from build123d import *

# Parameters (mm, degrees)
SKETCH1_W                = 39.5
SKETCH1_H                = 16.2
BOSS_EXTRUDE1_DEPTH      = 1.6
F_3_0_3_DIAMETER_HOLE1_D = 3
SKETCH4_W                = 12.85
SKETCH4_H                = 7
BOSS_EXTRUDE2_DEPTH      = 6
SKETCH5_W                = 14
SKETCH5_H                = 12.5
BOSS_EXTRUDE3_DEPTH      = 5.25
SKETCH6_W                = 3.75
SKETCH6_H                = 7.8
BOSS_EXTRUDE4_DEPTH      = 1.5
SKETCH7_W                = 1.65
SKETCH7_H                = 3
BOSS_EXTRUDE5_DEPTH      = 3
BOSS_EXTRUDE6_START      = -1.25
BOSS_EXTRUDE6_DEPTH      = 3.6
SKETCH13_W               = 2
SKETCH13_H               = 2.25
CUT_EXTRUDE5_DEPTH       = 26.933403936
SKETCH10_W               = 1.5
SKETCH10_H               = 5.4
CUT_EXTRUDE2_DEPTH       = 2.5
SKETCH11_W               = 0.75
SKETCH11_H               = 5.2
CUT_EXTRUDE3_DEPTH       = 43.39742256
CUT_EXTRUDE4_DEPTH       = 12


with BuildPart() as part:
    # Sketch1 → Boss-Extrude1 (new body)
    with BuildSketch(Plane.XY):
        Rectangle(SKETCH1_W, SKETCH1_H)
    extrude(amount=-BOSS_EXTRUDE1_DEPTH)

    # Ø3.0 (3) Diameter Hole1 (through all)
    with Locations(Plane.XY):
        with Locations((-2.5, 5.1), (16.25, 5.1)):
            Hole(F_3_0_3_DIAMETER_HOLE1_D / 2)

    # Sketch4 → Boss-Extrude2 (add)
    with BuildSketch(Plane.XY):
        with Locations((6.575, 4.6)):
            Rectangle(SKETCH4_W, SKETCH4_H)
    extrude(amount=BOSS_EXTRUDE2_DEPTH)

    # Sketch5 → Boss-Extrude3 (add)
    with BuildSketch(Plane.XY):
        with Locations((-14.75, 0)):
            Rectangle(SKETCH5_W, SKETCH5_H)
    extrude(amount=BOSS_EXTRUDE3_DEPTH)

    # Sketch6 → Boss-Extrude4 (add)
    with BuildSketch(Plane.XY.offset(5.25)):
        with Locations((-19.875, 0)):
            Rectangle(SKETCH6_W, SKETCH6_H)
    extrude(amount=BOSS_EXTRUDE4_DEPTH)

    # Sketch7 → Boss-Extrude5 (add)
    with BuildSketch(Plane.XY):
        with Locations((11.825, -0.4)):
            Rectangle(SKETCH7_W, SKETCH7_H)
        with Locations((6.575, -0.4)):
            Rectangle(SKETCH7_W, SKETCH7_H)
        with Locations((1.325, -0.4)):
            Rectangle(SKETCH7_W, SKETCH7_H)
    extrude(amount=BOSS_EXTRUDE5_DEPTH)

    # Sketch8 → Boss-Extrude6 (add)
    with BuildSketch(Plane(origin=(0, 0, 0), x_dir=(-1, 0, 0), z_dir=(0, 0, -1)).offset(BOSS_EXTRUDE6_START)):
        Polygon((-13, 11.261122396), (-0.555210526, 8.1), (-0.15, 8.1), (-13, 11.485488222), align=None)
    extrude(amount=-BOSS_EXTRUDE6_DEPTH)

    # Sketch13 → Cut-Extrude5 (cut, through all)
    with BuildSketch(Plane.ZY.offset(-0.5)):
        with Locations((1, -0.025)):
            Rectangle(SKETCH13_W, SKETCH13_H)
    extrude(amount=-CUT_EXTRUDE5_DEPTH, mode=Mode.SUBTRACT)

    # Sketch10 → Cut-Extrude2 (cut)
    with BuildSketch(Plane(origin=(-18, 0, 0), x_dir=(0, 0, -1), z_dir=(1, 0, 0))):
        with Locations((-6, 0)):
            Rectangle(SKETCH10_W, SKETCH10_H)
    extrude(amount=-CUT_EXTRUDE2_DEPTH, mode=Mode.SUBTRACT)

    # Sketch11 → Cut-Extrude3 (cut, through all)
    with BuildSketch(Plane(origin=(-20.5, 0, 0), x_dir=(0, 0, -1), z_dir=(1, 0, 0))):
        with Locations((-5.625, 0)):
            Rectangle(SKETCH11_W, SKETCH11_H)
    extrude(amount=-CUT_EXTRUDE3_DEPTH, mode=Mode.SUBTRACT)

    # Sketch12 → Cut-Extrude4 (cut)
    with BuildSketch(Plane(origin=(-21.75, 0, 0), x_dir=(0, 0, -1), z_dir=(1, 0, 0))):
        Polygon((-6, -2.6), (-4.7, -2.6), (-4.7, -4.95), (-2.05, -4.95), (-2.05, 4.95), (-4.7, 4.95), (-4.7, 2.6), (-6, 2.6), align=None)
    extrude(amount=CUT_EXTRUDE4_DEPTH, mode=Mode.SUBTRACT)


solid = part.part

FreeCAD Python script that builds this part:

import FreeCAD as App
import Part
import Sketcher

V = App.Vector
Q = App.Units.Quantity


def add_polygon(sketch, points):
    """Adds a closed chain of lines whose ends are joined by coincident constraints."""
    first, n = sketch.GeometryCount, len(points)
    for a, b in zip(points, points[1:] + points[:1]):
        sketch.addGeometry(Part.LineSegment(App.Vector(*a, 0), App.Vector(*b, 0)), False)
    for i in range(n):
        sketch.addConstraint(Sketcher.Constraint("Coincident", first + i, 2, first + (i + 1) % n, 1))

doc = App.newDocument("Part")
params = doc.addObject("Spreadsheet::Sheet", "Params")
for row, (alias, value) in enumerate([
    ("sketch1_width", "39.5 mm"),
    ("sketch1_height", "16.2 mm"),
    ("pad1_length", "1.6 mm"),
    ("sketch2_diameter", "3 mm"),
    ("hole_diameter", "3 mm"),
    ("sketch3_height", "7 mm"),
    ("sketch3_width", "12.85 mm"),
    ("pad2_length", "6 mm"),
    ("sketch4_width", "14 mm"),
    ("sketch4_height", "12.5 mm"),
    ("pad3_length", "5.25 mm"),
    ("sketch5_height", "7.8 mm"),
    ("sketch5_width", "3.75 mm"),
    ("pad4_length", "1.5 mm"),
    ("sketch6_height", "3 mm"),
    ("sketch6_width", "1.65 mm"),
    ("pad5_length", "3 mm"),
    ("pad6_length", "3.6 mm"),
    ("sketch8_height", "2 mm"),
    ("sketch8_width", "2.25 mm"),
    ("sketch9_width", "5.4 mm"),
    ("sketch9_height", "1.5 mm"),
    ("pocket2_length", "2.5 mm"),
    ("sketch10_width", "5.2 mm"),
    ("sketch10_height", "0.75 mm"),
    ("sketch11_width", "9.9 mm"),
    ("sketch11_width2", "5.2 mm"),
    ("sketch11_height", "1.3 mm"),
    ("sketch11_height2", "2.65 mm"),
    ("pocket4_length", "12 mm"),
], start=1):
    params.set(f"A{row}", alias)
    params.set(f"B{row}", "=" + value)
    params.setAlias(f"B{row}", alias)

body = doc.addObject("PartDesign::Body", "Body")

# Sketch on XY plane
sketch1 = body.newObject("Sketcher::SketchObject", "Sketch")
sketch1.AttachmentSupport = (doc.getObject("XY_Plane"), [""])
sketch1.MapMode = "FlatFace"
add_polygon(sketch1, [(-20, 8), (-20, -8), (20, -8), (20, 8)])  # lines 0-3
sketch1.addConstraint([
    Sketcher.Constraint("Vertical", 0),
    Sketcher.Constraint("Horizontal", 1),
    Sketcher.Constraint("Vertical", 2),
    Sketcher.Constraint("Horizontal", 3),
    Sketcher.Constraint("Symmetric", 0, 2, 2, 2, -1, 1),
    Sketcher.Constraint("DistanceX", 1, 1, 1, 2, Q("39.5 mm")),
    Sketcher.Constraint("DistanceY", 0, 2, 0, 1, Q("16.2 mm")),
])
sketch1.setExpression("Constraints[9]", "Params.sketch1_width")
sketch1.setExpression("Constraints[10]", "Params.sketch1_height")
pad1 = body.newObject("PartDesign::Pad", "Pad")
pad1.Profile = sketch1
pad1.setExpression("Length", "Params.pad1_length")
pad1.Reversed = True

# Sketch on XY plane
sketch2 = body.newObject("Sketcher::SketchObject", "Sketch001")
sketch2.AttachmentSupport = (doc.getObject("XY_Plane"), [""])
sketch2.MapMode = "FlatFace"
sketch2.addGeometry([
    Part.Circle(V(-2.5, 5.1, 0), V(0, 0, 1), 1.5),
    Part.Circle(V(16.2, 5.1, 0), V(0, 0, 1), 1.5),
], False)
sketch2.addConstraint([
    Sketcher.Constraint("Equal", 0, 1),
    Sketcher.Constraint("Horizontal", 0, 3, 1, 3),
    Sketcher.Constraint("Diameter", 0, Q("3 mm")),
    Sketcher.Constraint("DistanceX", 0, 3, -1, 1, Q("2.5 mm")),
    Sketcher.Constraint("DistanceY", -1, 1, 0, 3, Q("5.1 mm")),
    Sketcher.Constraint("DistanceX", -1, 1, 1, 3, Q("16.25 mm")),
])
sketch2.setExpression("Constraints[2]", "Params.sketch2_diameter")
doc.recompute()
hole = body.newObject("PartDesign::Hole", "Hole")
hole.Profile = sketch2
hole.ThreadType = "None"
hole.setExpression("Diameter", "Params.hole_diameter")
hole.DepthType = "ThroughAll"

# Sketch on XY plane
sketch3 = body.newObject("Sketcher::SketchObject", "Sketch002")
sketch3.AttachmentSupport = (doc.getObject("XY_Plane"), [""])
sketch3.MapMode = "FlatFace"
add_polygon(sketch3, [(0, 8), (0, 1), (13, 1), (13, 8)])  # lines 0-3
sketch3.addConstraint([
    Sketcher.Constraint("Vertical", 0),
    Sketcher.Constraint("Horizontal", 1),
    Sketcher.Constraint("Vertical", 2),
    Sketcher.Constraint("Horizontal", 3),
    Sketcher.Constraint("DistanceY", 0, 2, 0, 1, Q("7 mm")),
    Sketcher.Constraint("DistanceX", -1, 1, 1, 2, Q("13 mm")),
    Sketcher.Constraint("DistanceX", 1, 1, 1, 2, Q("12.85 mm")),
    Sketcher.Constraint("DistanceY", -1, 1, 0, 2, Q("1.1 mm")),
])
sketch3.setExpression("Constraints[8]", "Params.sketch3_height")
sketch3.setExpression("Constraints[10]", "Params.sketch3_width")
pad2 = body.newObject("PartDesign::Pad", "Pad001")
pad2.Profile = sketch3
pad2.setExpression("Length", "Params.pad2_length")

# Sketch on XY plane
sketch4 = body.newObject("Sketcher::SketchObject", "Sketch003")
sketch4.AttachmentSupport = (doc.getObject("XY_Plane"), [""])
sketch4.MapMode = "FlatFace"
add_polygon(sketch4, [(-22, 6), (-22, -6), (-8, -6), (-8, 6)])  # lines 0-3
sketch4.addConstraint([
    Sketcher.Constraint("Vertical", 0),
    Sketcher.Constraint("Horizontal", 1),
    Sketcher.Constraint("Vertical", 2),
    Sketcher.Constraint("Horizontal", 3),
    Sketcher.Constraint("DistanceX", 1, 1, 1, 2, Q("14 mm")),
    Sketcher.Constraint("DistanceY", 0, 2, 0, 1, Q("12.5 mm")),
    Sketcher.Constraint("DistanceX", 0, 2, -1, 1, Q("21.75 mm")),
    Sketcher.Constraint("DistanceY", 0, 2, -1, 1, Q("6.25 mm")),
])
sketch4.setExpression("Constraints[8]", "Params.sketch4_width")
sketch4.setExpression("Constraints[9]", "Params.sketch4_height")
pad3 = body.newObject("PartDesign::Pad", "Pad002")
pad3.Profile = sketch4
pad3.setExpression("Length", "Params.pad3_length")

# Sketch on XY plane
sketch5 = body.newObject("Sketcher::SketchObject", "Sketch004")
sketch5.AttachmentSupport = (doc.getObject("XY_Plane"), [""])
sketch5.MapMode = "FlatFace"
sketch5.AttachmentOffset = App.Placement(V(0, 0, 5.25), App.Rotation())
add_polygon(sketch5, [(-21.8, 3.9), (-21.8, -3.9), (-18, -3.9), (-18, 3.9)])  # lines 0-3
sketch5.addConstraint([
    Sketcher.Constraint("Vertical", 0),
    Sketcher.Constraint("Horizontal", 1),
    Sketcher.Constraint("Vertical", 2),
    Sketcher.Constraint("Horizontal", 3),
    Sketcher.Constraint("DistanceY", 0, 2, 0, 1, Q("7.8 mm")),
    Sketcher.Constraint("DistanceX", 1, 2, -1, 1, Q("18 mm")),
    Sketcher.Constraint("DistanceX", 1, 1, 1, 2, Q("3.75 mm")),
    Sketcher.Constraint("DistanceY", 0, 2, -1, 1, Q("3.9 mm")),
])
sketch5.setExpression("Constraints[8]", "Params.sketch5_height")
sketch5.setExpression("Constraints[10]", "Params.sketch5_width")
pad4 = body.newObject("PartDesign::Pad", "Pad003")
pad4.Profile = sketch5
pad4.setExpression("Length", "Params.pad4_length")

# Sketch on XY plane
sketch6 = body.newObject("Sketcher::SketchObject", "Sketch005")
sketch6.AttachmentSupport = (doc.getObject("XY_Plane"), [""])
sketch6.MapMode = "FlatFace"
add_polygon(sketch6, [(11, 1.1), (11, -1.9), (12.7, -1.9), (12.7, 1.1)])  # lines 0-3
add_polygon(sketch6, [(5.8, 1.1), (5.8, -1.9), (7.4, -1.9), (7.4, 1.1)])  # lines 4-7
add_polygon(sketch6, [(0.5, 1.1), (0.5, -1.9), (2.1, -1.9), (2.1, 1.1)])  # lines 8-11
sketch6.addConstraint([
    Sketcher.Constraint("Vertical", 0),
    Sketcher.Constraint("Horizontal", 1),
    Sketcher.Constraint("Vertical", 2),
    Sketcher.Constraint("Horizontal", 3),
    Sketcher.Constraint("Vertical", 4),
    Sketcher.Constraint("Horizontal", 5),
    Sketcher.Constraint("Vertical", 6),
    Sketcher.Constraint("Horizontal", 7),
    Sketcher.Constraint("Vertical", 8),
    Sketcher.Constraint("Horizontal", 9),
    Sketcher.Constraint("Vertical", 10),
    Sketcher.Constraint("Horizontal", 11),
    Sketcher.Constraint("Horizontal", 1, 2, 4, 2),
    Sketcher.Constraint("Horizontal", 3, 2, 6, 2),
    Sketcher.Constraint("Horizontal", 5, 2, 8, 2),
    Sketcher.Constraint("Horizontal", 7, 2, 10, 2),
    Sketcher.Constraint("Equal", 3, 5),
    Sketcher.Constraint("Equal", 7, 9),
    Sketcher.Constraint("DistanceY", 0, 2, 0, 1, Q("3 mm")),
    Sketcher.Constraint("DistanceX", -1, 1, 0, 2, Q("11 mm")),
    Sketcher.Constraint("DistanceX", 1, 1, 1, 2, Q("1.65 mm")),
    Sketcher.Constraint("DistanceY", 0, 2, -1, 1, Q("1.9 mm")),
    Sketcher.Constraint("DistanceX", -1, 1, 5, 2, Q("7.4 mm")),
    Sketcher.Constraint("DistanceX", -1, 1, 8, 2, Q("0.5 mm")),
])
sketch6.setExpression("Constraints[30]", "Params.sketch6_height")
sketch6.setExpression("Constraints[32]", "Params.sketch6_width")
pad5 = body.newObject("PartDesign::Pad", "Pad004")
pad5.Profile = sketch6
pad5.setExpression("Length", "Params.pad5_length")

# Sketch on XY plane
sketch7 = body.newObject("Sketcher::SketchObject", "Sketch006")
sketch7.AttachmentSupport = (doc.getObject("XY_Plane"), [""])
sketch7.MapMode = "FlatFace"
sketch7.AttachmentOffset = App.Placement(V(0, 0, 1.25), App.Rotation())
add_polygon(sketch7, [(13, 11.26), (0.56, 8.1), (0.15, 8.1), (13, 11.49)])  # lines 0-3
sketch7.addConstraint([
    Sketcher.Constraint("Horizontal", 1),
    Sketcher.Constraint("Vertical", 3),
    Sketcher.Constraint("DistanceX", -1, 1, 2, 2, Q("13 mm")),
    Sketcher.Constraint("DistanceY", -1, 1, 0, 2, Q("8.1 mm")),
    Sketcher.Constraint("DistanceX", -1, 1, 1, 2, Q("0.15 mm")),
    Sketcher.Constraint("DistanceX", 1, 2, 1, 1, Q("0.405211 mm")),
    Sketcher.Constraint("DistanceY", 3, 2, 3, 1, Q("0.224366 mm")),
    Sketcher.Constraint("DistanceY", -1, 1, 2, 2, Q("11.485488 mm")),
])
pad6 = body.newObject("PartDesign::Pad", "Pad005")
pad6.Profile = sketch7
pad6.setExpression("Length", "Params.pad6_length")

# Sketch on YZ plane
sketch8 = body.newObject("Sketcher::SketchObject", "Sketch007")
sketch8.AttachmentSupport = (doc.getObject("YZ_Plane"), [""])
sketch8.MapMode = "FlatFace"
sketch8.AttachmentOffset = App.Placement(V(0, 0, 0.5), App.Rotation())
add_polygon(sketch8, [(1.1, 0), (-1.1, 0), (-1.1, 2), (1.1, 2)])  # lines 0-3
sketch8.addConstraint([
    Sketcher.Constraint("Horizontal", 0),
    Sketcher.Constraint("Vertical", 1),
    Sketcher.Constraint("Horizontal", 2),
    Sketcher.Constraint("Vertical", 3),
    Sketcher.Constraint("PointOnObject", 0, 2, -1),
    Sketcher.Constraint("DistanceY", 1, 1, 1, 2, Q("2 mm")),
    Sketcher.Constraint("DistanceX", 0, 2, 0, 1, Q("2.25 mm")),
    Sketcher.Constraint("DistanceX", -1, 1, 2, 2, Q("1.1 mm")),
])
sketch8.setExpression("Constraints[9]", "Params.sketch8_height")
sketch8.setExpression("Constraints[10]", "Params.sketch8_width")
pocket1 = body.newObject("PartDesign::Pocket", "Pocket")
pocket1.Profile = sketch8
pocket1.Type = "ThroughAll"
pocket1.Reversed = True

# Sketch on YZ plane
sketch9 = body.newObject("Sketcher::SketchObject", "Sketch008")
sketch9.AttachmentSupport = (doc.getObject("YZ_Plane"), [""])
sketch9.MapMode = "FlatFace"
sketch9.AttachmentOffset = App.Placement(V(0, 0, -18), App.Rotation())
add_polygon(sketch9, [(2.7, 6.8), (-2.7, 6.8), (-2.7, 5.2), (2.7, 5.2)])  # lines 0-3
sketch9.addConstraint([
    Sketcher.Constraint("Horizontal", 0),
    Sketcher.Constraint("Vertical", 1),
    Sketcher.Constraint("Horizontal", 2),
    Sketcher.Constraint("Vertical", 3),
    Sketcher.Constraint("DistanceX", 0, 2, 0, 1, Q("5.4 mm")),
    Sketcher.Constraint("DistanceY", 1, 2, 1, 1, Q("1.5 mm")),
    Sketcher.Constraint("DistanceX", 0, 2, -1, 1, Q("2.7 mm")),
    Sketcher.Constraint("DistanceY", -1, 1, 0, 2, Q("6.75 mm")),
])
sketch9.setExpression("Constraints[8]", "Params.sketch9_width")
sketch9.setExpression("Constraints[9]", "Params.sketch9_height")
pocket2 = body.newObject("PartDesign::Pocket", "Pocket001")
pocket2.Profile = sketch9
pocket2.setExpression("Length", "Params.pocket2_length")

# Sketch on YZ plane
sketch10 = body.newObject("Sketcher::SketchObject", "Sketch009")
sketch10.AttachmentSupport = (doc.getObject("YZ_Plane"), [""])
sketch10.MapMode = "FlatFace"
sketch10.AttachmentOffset = App.Placement(V(0, 0, -20.5), App.Rotation())
add_polygon(sketch10, [(2.6, 6), (-2.6, 6), (-2.6, 5.2), (2.6, 5.2)])  # lines 0-3
sketch10.addConstraint([
    Sketcher.Constraint("Horizontal", 0),
    Sketcher.Constraint("Vertical", 1),
    Sketcher.Constraint("Horizontal", 2),
    Sketcher.Constraint("Vertical", 3),
    Sketcher.Constraint("DistanceX", 0, 2, 0, 1, Q("5.2 mm")),
    Sketcher.Constraint("DistanceY", -1, 1, 0, 2, Q("6 mm")),
    Sketcher.Constraint("DistanceY", 1, 2, 1, 1, Q("0.75 mm")),
    Sketcher.Constraint("DistanceX", 0, 2, -1, 1, Q("2.6 mm")),
])
sketch10.setExpression("Constraints[8]", "Params.sketch10_width")
sketch10.setExpression("Constraints[10]", "Params.sketch10_height")
pocket3 = body.newObject("PartDesign::Pocket", "Pocket002")
pocket3.Profile = sketch10
pocket3.Type = "ThroughAll"

# Sketch on YZ plane
sketch11 = body.newObject("Sketcher::SketchObject", "Sketch010")
sketch11.AttachmentSupport = (doc.getObject("YZ_Plane"), [""])
sketch11.MapMode = "FlatFace"
sketch11.AttachmentOffset = App.Placement(V(0, 0, -21.75), App.Rotation())
add_polygon(sketch11, [(-2.6, 6), (-2.6, 4.7), (-5, 4.7), (-5, 2), (5, 2), (5, 4.7), (2.6, 4.7), (2.6, 6)])  # lines 0-7
sketch11.addConstraint([
    Sketcher.Constraint("Vertical", 0),
    Sketcher.Constraint("Horizontal", 1),
    Sketcher.Constraint("Vertical", 2),
    Sketcher.Constraint("Horizontal", 3),
    Sketcher.Constraint("Vertical", 4),
    Sketcher.Constraint("Horizontal", 5),
    Sketcher.Constraint("Vertical", 6),
    Sketcher.Constraint("Horizontal", 7),
    Sketcher.Constraint("Symmetric", 1, 2, 4, 2, -2),
    Sketcher.Constraint("Equal", 1, 5),
    Sketcher.Constraint("DistanceX", 3, 1, 3, 2, Q("9.9 mm")),
    Sketcher.Constraint("DistanceX", 7, 2, 7, 1, Q("5.2 mm")),
    Sketcher.Constraint("DistanceY", 0, 2, 0, 1, Q("1.3 mm")),
    Sketcher.Constraint("DistanceY", -1, 1, 6, 2, Q("6 mm")),
    Sketcher.Constraint("DistanceY", 2, 2, 2, 1, Q("2.65 mm")),
])
sketch11.setExpression("Constraints[18]", "Params.sketch11_width")
sketch11.setExpression("Constraints[19]", "Params.sketch11_width2")
sketch11.setExpression("Constraints[20]", "Params.sketch11_height")
sketch11.setExpression("Constraints[22]", "Params.sketch11_height2")
pocket4 = body.newObject("PartDesign::Pocket", "Pocket003")
pocket4.Profile = sketch11
pocket4.setExpression("Length", "Params.pocket4_length")
pocket4.Reversed = True

doc.recompute()
